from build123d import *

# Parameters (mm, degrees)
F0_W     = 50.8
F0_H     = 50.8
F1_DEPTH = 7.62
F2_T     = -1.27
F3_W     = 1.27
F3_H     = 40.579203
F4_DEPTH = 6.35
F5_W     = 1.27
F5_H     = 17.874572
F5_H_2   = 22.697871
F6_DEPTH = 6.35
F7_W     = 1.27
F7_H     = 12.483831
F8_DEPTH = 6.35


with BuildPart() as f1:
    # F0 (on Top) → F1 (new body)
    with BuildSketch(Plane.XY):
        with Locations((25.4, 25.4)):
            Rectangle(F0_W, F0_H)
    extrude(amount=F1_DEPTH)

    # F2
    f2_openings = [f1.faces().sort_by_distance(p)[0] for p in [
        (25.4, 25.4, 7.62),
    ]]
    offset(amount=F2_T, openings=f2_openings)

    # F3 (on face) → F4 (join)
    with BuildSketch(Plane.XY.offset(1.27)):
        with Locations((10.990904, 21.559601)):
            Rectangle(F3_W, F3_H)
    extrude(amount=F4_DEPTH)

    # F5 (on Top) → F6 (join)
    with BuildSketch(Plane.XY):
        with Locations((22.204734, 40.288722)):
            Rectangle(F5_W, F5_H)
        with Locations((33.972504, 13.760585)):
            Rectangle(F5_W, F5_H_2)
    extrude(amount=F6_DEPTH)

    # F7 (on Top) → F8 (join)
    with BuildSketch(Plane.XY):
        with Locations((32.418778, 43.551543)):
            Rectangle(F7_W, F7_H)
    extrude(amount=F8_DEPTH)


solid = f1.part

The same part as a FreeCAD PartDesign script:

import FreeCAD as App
import Part
import Sketcher
from FreeCAD import Vector
Q = App.Units.Quantity


def faces_at(feature, points):
    """Names of the faces that lie closest to the given points."""
    faces = feature.Shape.Faces
    near = lambda p: min(range(len(faces)), key=lambda i: faces[i].distToShape(Part.Vertex(*p))[0])
    return sorted({f"Face{near(p) + 1}" for p in points})

doc = App.newDocument("Part")
body = doc.addObject("PartDesign::Body", "Body")

sketch1 = body.newObject("Sketcher::SketchObject", "Sketch")
sketch1.AttachmentSupport = (doc.getObject("XY_Plane"), [""])
sketch1.MapMode = "FlatFace"
sketch1.addGeometry(Part.LineSegment(Vector(0, 51, 0), Vector(0, 0, 0)), False)
sketch1.addGeometry(Part.LineSegment(Vector(0, 0, 0), Vector(51, 0, 0)), False)
sketch1.addGeometry(Part.LineSegment(Vector(51, 0, 0), Vector(51, 51, 0)), False)
sketch1.addGeometry(Part.LineSegment(Vector(51, 51, 0), Vector(0, 51, 0)), False)
sketch1.addConstraint(Sketcher.Constraint("Coincident", 0, 2, 1, 1))
sketch1.addConstraint(Sketcher.Constraint("Coincident", 1, 2, 2, 1))
sketch1.addConstraint(Sketcher.Constraint("Coincident", 2, 2, 3, 1))
sketch1.addConstraint(Sketcher.Constraint("Coincident", 3, 2, 0, 1))
sketch1.addConstraint(Sketcher.Constraint("Vertical", 0))
sketch1.addConstraint(Sketcher.Constraint("Horizontal", 1))
sketch1.addConstraint(Sketcher.Constraint("Vertical", 2))
sketch1.addConstraint(Sketcher.Constraint("Horizontal", 3))
sketch1.addConstraint(Sketcher.Constraint("Coincident", 0, 2, -1, 1))
sketch1.addConstraint(Sketcher.Constraint("Equal", 3, 0))
sketch1.addConstraint(Sketcher.Constraint("DistanceX", 1, 1, 1, 2, Q("2 in")))
pad1 = body.newObject("PartDesign::Pad", "Pad")
pad1.Profile = sketch1
pad1.Length = Q("0.3 in")
doc.recompute()

thickness = body.newObject("PartDesign::Thickness", "Thickness")
thickness.Base = (pad1, faces_at(pad1, [(25.4, 25.4, 7.62)]))
thickness.Value = Q("0.05 in")
thickness.Reversed = True
thickness.Join = "Arc"

sketch2 = body.newObject("Sketcher::SketchObject", "Sketch001")
sketch2.AttachmentSupport = (doc.getObject("XY_Plane"), [""])
sketch2.MapMode = "FlatFace"
sketch2.AttachmentOffset = App.Placement(Vector(0, 0, 0.05 * 25.4), App.Rotation())
sketch2.addGeometry(Part.LineSegment(Vector(10.4, 41.8, 0), Vector(10.4, 1.3, 0)), False)
sketch2.addGeometry(Part.LineSegment(Vector(10.4, 1.3, 0), Vector(11.6, 1.3, 0)), False)
sketch2.addGeometry(Part.LineSegment(Vector(11.6, 1.3, 0), Vector(11.6, 41.8, 0)), False)
sketch2.addGeometry(Part.LineSegment(Vector(11.6, 41.8, 0), Vector(10.4, 41.8, 0)), False)
sketch2.addConstraint(Sketcher.Constraint("Coincident", 0, 2, 1, 1))
sketch2.addConstraint(Sketcher.Constraint("Coincident", 1, 2, 2, 1))
sketch2.addConstraint(Sketcher.Constraint("Coincident", 2, 2, 3, 1))
sketch2.addConstraint(Sketcher.Constraint("Coincident", 3, 2, 0, 1))
sketch2.addConstraint(Sketcher.Constraint("Vertical", 0))
sketch2.addConstraint(Sketcher.Constraint("Horizontal", 1))
sketch2.addConstraint(Sketcher.Constraint("Vertical", 2))
sketch2.addConstraint(Sketcher.Constraint("Horizontal", 3))
sketch2.addConstraint(Sketcher.Constraint("DistanceX", 1, 1, 1, 2, Q("0.05 in")))
sketch2.addConstraint(Sketcher.Constraint("DistanceY", -1, 1, 0, 2, Q("0.05 in")))
sketch2.addConstraint(Sketcher.Constraint("DistanceY", 0, 2, 0, 1, 40.579203))
sketch2.addConstraint(Sketcher.Constraint("DistanceX", -1, 1, 0, 2, 10.355904))
pad2 = body.newObject("PartDesign::Pad", "Pad001")
pad2.Profile = sketch2
pad2.Length = Q("0.25 in")

sketch3 = body.newObject("Sketcher::SketchObject", "Sketch002")
sketch3.AttachmentSupport = (doc.getObject("XY_Plane"), [""])
sketch3.MapMode = "FlatFace"
sketch3.addGeometry(Part.LineSegment(Vector(21.6, 49.2, 0), Vector(21.6, 31.4, 0)), False)
sketch3.addGeometry(Part.LineSegment(Vector(21.6, 31.4, 0), Vector(22.8, 31.4, 0)), False)
sketch3.addGeometry(Part.LineSegment(Vector(22.8, 31.4, 0), Vector(22.8, 49.2, 0)), False)
sketch3.addGeometry(Part.LineSegment(Vector(22.8, 49.2, 0), Vector(21.6, 49.2, 0)), False)
sketch3.addGeometry(Part.LineSegment(Vector(33.3, 25.1, 0), Vector(33.3, 2.4, 0)), False)
sketch3.addGeometry(Part.LineSegment(Vector(33.3, 2.4, 0), Vector(34.6, 2.4, 0)), False)
sketch3.addGeometry(Part.LineSegment(Vector(34.6, 2.4, 0), Vector(34.6, 25.1, 0)), False)
sketch3.addGeometry(Part.LineSegment(Vector(34.6, 25.1, 0), Vector(33.3, 25.1, 0)), False)
sketch3.addConstraint(Sketcher.Constraint("Coincident", 0, 2, 1, 1))
sketch3.addConstraint(Sketcher.Constraint("Coincident", 1, 2, 2, 1))
sketch3.addConstraint(Sketcher.Constraint("Coincident", 2, 2, 3, 1))
sketch3.addConstraint(Sketcher.Constraint("Coincident", 3, 2, 0, 1))
sketch3.addConstraint(Sketcher.Constraint("Coincident", 4, 2, 5, 1))
sketch3.addConstraint(Sketcher.Constraint("Coincident", 5, 2, 6, 1))
sketch3.addConstraint(Sketcher.Constraint("Coincident", 6, 2, 7, 1))
sketch3.addConstraint(Sketcher.Constraint("Coincident", 7, 2, 4, 1))
sketch3.addConstraint(Sketcher.Constraint("Vertical", 0))
sketch3.addConstraint(Sketcher.Constraint("Horizontal", 1))
sketch3.addConstraint(Sketcher.Constraint("Vertical", 2))
sketch3.addConstraint(Sketcher.Constraint("Horizontal", 3))
sketch3.addConstraint(Sketcher.Constraint("Vertical", 4))
sketch3.addConstraint(Sketcher.Constraint("Horizontal", 5))
sketch3.addConstraint(Sketcher.Constraint("Vertical", 6))
sketch3.addConstraint(Sketcher.Constraint("Horizontal", 7))
sketch3.addConstraint(Sketcher.Constraint("Equal", 3, 5))
sketch3.addConstraint(Sketcher.Constraint("DistanceX", 1, 1, 1, 2, Q("0.05 in")))
sketch3.addConstraint(Sketcher.Constraint("DistanceX", -1, 1, 4, 2, Q("1.3125002 in")))
sketch3.addConstraint(Sketcher.Constraint("DistanceY", 4, 2, 4, 1, 22.697871))
sketch3.addConstraint(Sketcher.Constraint("DistanceY", 0, 2, 0, 1, 17.874572))
sketch3.addConstraint(Sketcher.Constraint("DistanceY", -1, 1, 4, 2, 2.411649))
sketch3.addConstraint(Sketcher.Constraint("DistanceX", 1, 2, 4, 2, 10.49777))
sketch3.addConstraint(Sketcher.Constraint("DistanceY", 4, 2, 2, 2, 46.814358))
pad3 = body.newObject("PartDesign::Pad", "Pad002")
pad3.Profile = sketch3
pad3.Length = Q("0.25 in")

sketch4 = body.newObject("Sketcher::SketchObject", "Sketch003")
sketch4.AttachmentSupport = (doc.getObject("XY_Plane"), [""])
sketch4.MapMode = "FlatFace"
sketch4.addGeometry(Part.LineSegment(Vector(31.8, 49.8, 0), Vector(31.8, 37.3, 0)), False)
sketch4.addGeometry(Part.LineSegment(Vector(31.8, 37.3, 0), Vector(33.1, 37.3, 0)), False)
sketch4.addGeometry(Part.LineSegment(Vector(33.1, 37.3, 0), Vector(33.1, 49.8, 0)), False)
sketch4.addGeometry(Part.LineSegment(Vector(33.1, 49.8, 0), Vector(31.8, 49.8, 0)), False)
sketch4.addConstraint(Sketcher.Constraint("Coincident", 0, 2, 1, 1))
sketch4.addConstraint(Sketcher.Constraint("Coincident", 1, 2, 2, 1))
sketch4.addConstraint(Sketcher.Constraint("Coincident", 2, 2, 3, 1))
sketch4.addConstraint(Sketcher.Constraint("Coincident", 3, 2, 0, 1))
sketch4.addConstraint(Sketcher.Constraint("Vertical", 0))
sketch4.addConstraint(Sketcher.Constraint("Horizontal", 1))
sketch4.addConstraint(Sketcher.Constraint("Vertical", 2))
sketch4.addConstraint(Sketcher.Constraint("Horizontal", 3))
sketch4.addConstraint(Sketcher.Constraint("DistanceX", 1, 1, 1, 2, Q("0.05 in")))
sketch4.addConstraint(Sketcher.Constraint("DistanceY", 0, 2, 0, 1, 12.483831))
sketch4.addConstraint(Sketcher.Constraint("DistanceX", -1, 1, 0, 2, 31.783778))
sketch4.addConstraint(Sketcher.Constraint("DistanceY", -1, 1, 2, 2, 49.793458))
pad4 = body.newObject("PartDesign::Pad", "Pad003")
pad4.Profile = sketch4
pad4.Length = Q("0.25 in")

doc.recompute()
